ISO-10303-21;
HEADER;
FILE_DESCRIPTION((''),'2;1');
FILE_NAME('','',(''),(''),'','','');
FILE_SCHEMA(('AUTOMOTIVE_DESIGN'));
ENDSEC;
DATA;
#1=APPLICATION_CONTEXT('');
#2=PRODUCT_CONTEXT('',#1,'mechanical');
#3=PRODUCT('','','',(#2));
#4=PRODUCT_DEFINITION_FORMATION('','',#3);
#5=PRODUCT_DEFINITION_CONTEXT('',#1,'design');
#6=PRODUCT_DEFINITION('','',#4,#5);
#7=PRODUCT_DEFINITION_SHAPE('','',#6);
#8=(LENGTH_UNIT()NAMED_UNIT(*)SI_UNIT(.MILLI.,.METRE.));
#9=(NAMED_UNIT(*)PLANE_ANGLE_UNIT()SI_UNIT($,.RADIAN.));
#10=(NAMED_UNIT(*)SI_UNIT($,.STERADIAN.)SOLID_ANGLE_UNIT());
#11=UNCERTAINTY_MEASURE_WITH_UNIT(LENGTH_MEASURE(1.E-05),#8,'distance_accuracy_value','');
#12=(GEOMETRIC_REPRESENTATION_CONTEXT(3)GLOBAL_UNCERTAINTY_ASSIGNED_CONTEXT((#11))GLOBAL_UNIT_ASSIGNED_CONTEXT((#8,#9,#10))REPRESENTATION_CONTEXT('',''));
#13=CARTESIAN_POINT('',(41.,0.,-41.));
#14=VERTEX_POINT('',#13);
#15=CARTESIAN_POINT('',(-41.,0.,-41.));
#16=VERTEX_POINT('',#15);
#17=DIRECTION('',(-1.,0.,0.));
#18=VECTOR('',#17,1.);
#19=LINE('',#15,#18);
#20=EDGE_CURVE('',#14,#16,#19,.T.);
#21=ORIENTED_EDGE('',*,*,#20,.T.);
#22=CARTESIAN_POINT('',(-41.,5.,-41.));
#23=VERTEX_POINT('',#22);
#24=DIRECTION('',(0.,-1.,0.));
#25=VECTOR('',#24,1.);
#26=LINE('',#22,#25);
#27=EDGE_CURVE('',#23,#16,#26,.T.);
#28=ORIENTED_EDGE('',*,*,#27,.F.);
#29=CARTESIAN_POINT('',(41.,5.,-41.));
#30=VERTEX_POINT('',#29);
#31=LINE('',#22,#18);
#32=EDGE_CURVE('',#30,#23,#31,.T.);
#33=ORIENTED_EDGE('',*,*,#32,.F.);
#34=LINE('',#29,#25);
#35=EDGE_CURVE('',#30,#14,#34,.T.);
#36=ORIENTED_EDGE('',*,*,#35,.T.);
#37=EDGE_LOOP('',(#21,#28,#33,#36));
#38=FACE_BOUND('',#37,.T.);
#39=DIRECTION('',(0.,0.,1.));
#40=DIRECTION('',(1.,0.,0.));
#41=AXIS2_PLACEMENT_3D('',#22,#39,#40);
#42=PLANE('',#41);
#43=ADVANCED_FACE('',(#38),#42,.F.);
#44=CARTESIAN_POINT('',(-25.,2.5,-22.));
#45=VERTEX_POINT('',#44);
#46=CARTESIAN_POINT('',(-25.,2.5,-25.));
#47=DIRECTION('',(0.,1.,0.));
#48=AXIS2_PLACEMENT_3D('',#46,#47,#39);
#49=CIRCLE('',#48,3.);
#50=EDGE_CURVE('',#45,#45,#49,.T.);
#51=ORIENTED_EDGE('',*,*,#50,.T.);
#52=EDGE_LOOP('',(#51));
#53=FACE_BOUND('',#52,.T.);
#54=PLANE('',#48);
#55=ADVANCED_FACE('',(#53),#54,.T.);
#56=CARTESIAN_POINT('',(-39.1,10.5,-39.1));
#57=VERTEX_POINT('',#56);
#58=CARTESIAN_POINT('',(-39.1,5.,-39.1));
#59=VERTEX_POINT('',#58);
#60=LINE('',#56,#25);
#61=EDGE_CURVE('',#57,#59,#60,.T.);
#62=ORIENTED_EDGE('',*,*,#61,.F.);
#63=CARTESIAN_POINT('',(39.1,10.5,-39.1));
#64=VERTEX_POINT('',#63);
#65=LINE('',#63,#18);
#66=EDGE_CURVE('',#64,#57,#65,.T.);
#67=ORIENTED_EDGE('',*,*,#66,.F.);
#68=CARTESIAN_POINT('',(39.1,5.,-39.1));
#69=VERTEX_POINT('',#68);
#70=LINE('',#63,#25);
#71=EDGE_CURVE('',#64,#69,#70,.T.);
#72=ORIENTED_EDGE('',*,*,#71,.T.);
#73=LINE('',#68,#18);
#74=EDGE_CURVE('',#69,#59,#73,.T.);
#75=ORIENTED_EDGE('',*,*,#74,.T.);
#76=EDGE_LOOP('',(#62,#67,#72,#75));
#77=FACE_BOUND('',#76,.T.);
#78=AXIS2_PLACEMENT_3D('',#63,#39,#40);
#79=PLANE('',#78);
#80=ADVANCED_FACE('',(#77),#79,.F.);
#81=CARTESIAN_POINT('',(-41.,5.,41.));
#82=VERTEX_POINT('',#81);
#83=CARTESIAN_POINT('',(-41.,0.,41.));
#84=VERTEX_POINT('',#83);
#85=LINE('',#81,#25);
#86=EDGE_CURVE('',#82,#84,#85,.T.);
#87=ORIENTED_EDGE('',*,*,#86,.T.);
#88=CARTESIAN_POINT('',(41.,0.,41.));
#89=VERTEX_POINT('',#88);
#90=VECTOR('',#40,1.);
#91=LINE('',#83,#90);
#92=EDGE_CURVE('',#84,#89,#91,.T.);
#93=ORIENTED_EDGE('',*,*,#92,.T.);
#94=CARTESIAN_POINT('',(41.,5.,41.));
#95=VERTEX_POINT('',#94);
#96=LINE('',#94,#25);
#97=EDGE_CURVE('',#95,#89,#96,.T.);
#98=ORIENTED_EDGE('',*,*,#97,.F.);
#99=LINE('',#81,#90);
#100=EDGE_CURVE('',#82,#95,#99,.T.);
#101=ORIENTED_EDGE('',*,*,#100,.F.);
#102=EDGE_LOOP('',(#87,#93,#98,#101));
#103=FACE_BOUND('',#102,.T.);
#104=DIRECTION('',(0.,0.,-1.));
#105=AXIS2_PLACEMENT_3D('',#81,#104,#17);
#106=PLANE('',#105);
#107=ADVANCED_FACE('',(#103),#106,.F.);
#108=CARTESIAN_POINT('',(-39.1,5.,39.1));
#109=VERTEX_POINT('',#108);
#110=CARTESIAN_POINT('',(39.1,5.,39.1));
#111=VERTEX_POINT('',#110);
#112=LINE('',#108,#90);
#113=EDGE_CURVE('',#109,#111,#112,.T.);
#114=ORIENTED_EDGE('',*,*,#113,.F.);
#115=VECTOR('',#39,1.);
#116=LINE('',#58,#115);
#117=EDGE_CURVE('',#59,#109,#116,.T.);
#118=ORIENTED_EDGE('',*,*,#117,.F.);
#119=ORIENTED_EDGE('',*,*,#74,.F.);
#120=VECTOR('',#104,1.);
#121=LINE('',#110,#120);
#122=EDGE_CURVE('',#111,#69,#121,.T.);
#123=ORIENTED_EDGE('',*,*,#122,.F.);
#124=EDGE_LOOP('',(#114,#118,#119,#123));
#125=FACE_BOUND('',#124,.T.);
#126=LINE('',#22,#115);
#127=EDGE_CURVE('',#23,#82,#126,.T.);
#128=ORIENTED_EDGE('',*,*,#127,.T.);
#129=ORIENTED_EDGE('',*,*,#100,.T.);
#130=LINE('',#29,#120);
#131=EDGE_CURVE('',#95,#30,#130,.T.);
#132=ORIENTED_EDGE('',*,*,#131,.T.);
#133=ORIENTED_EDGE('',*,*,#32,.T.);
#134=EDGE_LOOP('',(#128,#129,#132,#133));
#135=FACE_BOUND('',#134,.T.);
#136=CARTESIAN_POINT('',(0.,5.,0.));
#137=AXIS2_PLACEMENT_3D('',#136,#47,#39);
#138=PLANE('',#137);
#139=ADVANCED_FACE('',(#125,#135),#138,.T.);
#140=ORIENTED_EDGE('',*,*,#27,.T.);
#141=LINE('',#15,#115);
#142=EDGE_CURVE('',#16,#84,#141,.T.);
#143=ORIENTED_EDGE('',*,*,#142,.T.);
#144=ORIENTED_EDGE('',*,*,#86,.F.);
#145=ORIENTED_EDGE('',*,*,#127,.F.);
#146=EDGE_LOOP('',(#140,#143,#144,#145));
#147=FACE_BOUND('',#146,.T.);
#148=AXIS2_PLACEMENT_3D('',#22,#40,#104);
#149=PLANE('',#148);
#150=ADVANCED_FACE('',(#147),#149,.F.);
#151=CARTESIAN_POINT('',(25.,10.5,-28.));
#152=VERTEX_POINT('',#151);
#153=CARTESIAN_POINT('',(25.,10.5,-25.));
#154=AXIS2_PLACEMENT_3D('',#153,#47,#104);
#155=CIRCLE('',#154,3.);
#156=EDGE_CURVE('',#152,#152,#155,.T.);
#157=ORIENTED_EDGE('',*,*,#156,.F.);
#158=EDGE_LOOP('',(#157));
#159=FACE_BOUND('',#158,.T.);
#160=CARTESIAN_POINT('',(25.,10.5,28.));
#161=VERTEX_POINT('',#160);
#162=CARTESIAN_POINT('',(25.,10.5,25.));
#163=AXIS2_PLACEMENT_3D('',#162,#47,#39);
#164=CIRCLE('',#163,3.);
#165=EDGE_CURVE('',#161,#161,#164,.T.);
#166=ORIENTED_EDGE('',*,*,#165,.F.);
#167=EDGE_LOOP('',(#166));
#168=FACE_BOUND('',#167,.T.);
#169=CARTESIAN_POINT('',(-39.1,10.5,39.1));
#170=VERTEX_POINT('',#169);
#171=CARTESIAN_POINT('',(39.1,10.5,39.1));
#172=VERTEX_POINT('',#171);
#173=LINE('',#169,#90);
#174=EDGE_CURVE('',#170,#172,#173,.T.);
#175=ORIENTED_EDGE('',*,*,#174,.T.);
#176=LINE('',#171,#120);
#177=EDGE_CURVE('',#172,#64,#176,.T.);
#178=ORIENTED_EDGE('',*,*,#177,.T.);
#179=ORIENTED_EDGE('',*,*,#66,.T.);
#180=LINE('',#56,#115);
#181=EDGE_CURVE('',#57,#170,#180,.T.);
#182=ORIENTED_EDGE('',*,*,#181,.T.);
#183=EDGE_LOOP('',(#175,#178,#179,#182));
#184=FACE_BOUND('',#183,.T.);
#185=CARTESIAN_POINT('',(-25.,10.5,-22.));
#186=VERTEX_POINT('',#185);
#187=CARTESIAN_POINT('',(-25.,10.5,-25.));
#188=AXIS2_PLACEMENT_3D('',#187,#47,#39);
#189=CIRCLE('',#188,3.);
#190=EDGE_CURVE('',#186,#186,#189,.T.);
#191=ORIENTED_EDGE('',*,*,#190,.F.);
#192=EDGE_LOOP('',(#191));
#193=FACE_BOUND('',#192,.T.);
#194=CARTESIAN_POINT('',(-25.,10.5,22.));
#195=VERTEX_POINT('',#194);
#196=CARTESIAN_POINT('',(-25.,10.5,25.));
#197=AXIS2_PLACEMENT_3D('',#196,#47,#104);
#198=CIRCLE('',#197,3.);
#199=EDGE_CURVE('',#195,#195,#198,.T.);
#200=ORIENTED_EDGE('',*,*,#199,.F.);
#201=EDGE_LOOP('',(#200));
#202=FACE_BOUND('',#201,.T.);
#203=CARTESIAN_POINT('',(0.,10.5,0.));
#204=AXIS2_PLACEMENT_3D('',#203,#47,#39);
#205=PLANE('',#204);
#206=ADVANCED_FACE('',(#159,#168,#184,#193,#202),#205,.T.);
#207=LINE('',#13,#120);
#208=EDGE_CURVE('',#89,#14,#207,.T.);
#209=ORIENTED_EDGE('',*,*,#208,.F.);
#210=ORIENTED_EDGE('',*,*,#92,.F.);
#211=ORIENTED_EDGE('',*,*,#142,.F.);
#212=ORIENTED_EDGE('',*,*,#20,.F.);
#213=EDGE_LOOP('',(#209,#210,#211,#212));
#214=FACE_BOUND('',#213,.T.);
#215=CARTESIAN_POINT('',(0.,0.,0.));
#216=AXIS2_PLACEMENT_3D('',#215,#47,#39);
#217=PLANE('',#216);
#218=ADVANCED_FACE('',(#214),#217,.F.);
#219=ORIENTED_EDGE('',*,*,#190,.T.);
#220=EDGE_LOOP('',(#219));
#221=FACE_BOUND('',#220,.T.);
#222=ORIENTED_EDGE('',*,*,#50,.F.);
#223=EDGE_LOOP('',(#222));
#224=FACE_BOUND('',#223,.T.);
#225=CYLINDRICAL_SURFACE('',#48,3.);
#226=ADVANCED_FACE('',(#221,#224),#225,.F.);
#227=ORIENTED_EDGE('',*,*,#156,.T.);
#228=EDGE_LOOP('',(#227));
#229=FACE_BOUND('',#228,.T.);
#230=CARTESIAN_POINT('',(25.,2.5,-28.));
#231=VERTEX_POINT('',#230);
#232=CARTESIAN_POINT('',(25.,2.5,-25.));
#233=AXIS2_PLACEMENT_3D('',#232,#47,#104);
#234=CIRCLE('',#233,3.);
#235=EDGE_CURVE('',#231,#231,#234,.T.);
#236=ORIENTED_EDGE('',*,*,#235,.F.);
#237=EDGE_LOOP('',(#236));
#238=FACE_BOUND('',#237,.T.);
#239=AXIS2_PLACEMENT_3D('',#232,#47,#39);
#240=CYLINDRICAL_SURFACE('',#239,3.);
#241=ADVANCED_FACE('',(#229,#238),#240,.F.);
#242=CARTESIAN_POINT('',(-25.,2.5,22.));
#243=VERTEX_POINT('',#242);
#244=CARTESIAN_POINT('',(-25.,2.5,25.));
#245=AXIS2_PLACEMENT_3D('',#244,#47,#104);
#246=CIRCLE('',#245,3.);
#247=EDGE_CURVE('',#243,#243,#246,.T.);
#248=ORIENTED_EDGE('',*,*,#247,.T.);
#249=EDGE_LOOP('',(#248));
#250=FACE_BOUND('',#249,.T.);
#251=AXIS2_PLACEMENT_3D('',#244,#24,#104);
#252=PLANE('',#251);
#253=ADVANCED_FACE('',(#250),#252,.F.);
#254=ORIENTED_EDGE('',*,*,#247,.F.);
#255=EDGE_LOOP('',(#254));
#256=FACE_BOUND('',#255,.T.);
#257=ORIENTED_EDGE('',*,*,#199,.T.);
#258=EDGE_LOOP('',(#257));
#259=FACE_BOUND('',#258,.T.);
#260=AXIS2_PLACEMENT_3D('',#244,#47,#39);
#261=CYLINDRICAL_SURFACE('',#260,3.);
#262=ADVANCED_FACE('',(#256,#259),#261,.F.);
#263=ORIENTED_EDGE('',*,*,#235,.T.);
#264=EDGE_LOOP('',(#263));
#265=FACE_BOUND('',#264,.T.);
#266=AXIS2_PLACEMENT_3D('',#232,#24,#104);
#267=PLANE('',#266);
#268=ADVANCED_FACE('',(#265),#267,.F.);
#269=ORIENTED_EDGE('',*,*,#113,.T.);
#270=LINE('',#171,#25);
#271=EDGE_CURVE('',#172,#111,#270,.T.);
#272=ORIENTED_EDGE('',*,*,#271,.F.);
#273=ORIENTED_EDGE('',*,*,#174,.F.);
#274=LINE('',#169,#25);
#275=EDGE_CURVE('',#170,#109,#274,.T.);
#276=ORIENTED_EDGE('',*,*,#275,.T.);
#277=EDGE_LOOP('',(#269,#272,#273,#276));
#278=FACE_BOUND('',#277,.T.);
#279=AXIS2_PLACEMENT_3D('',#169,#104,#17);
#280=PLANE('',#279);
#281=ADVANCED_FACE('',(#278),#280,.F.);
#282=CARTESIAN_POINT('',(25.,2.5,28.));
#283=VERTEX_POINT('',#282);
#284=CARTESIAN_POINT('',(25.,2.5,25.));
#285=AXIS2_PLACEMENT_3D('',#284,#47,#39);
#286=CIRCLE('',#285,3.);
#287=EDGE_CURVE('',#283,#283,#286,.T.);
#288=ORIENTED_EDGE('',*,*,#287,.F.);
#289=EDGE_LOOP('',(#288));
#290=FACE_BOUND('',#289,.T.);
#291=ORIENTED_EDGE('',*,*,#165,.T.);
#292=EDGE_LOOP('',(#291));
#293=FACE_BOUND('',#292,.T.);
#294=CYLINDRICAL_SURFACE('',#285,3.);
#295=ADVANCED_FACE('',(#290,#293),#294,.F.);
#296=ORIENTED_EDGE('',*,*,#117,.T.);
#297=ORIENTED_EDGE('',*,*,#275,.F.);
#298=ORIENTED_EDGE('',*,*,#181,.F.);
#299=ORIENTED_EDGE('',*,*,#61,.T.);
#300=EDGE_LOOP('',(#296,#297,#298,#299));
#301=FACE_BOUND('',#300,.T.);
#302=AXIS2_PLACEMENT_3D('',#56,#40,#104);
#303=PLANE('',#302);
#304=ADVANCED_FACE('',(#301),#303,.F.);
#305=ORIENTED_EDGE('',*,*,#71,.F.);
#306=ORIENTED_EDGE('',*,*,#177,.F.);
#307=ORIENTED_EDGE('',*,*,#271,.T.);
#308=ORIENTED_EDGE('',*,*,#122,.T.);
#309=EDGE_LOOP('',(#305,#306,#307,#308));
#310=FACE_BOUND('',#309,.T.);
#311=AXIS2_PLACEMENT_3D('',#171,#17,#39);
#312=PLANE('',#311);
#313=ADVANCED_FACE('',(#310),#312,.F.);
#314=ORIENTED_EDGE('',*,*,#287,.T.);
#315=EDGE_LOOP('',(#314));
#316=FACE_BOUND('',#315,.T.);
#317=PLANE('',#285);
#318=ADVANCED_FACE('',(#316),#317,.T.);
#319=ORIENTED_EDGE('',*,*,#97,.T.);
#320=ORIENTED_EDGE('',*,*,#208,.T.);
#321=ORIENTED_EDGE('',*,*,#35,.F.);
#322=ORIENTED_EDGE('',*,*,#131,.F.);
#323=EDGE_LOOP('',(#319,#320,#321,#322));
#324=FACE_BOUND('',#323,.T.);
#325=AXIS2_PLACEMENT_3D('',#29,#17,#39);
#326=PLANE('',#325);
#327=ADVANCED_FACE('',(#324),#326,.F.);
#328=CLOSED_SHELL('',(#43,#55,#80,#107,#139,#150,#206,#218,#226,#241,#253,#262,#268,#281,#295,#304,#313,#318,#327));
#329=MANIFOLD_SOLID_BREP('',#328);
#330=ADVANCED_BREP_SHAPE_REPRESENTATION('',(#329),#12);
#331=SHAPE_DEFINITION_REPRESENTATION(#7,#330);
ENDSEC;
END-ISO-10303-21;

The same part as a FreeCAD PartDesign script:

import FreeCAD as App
import Part
import Sketcher

doc = App.newDocument("Part")
params = doc.addObject("Spreadsheet::Sheet", "Params")
for row, (alias, value) in enumerate([
    ("sketch1_width", "82 mm"),
    ("pad1_length", "5 mm"),
    ("sketch2_width", "78.2 mm"),
    ("pad2_length", "5.5 mm"),
    ("sketch3_diameter", "6 mm"),
    ("pocket1_length", "8 mm"),
], start=1):
    params.set(f"A{row}", alias)
    params.set(f"B{row}", "=" + value)
    params.setAlias(f"B{row}", alias)

body = doc.addObject("PartDesign::Body", "Body")

sketch1 = doc.addObject("Sketcher::SketchObject", "Sketch")
body.addObject(sketch1)
sketch1.AttachmentSupport = (doc.XZ_Plane, [""])
sketch1.MapMode = "FlatFace"
sketch1.addGeometry(Part.LineSegment(App.Vector(-41, -41, 0), App.Vector(-41, 41, 0)), False)
sketch1.addGeometry(Part.LineSegment(App.Vector(-41, 41, 0), App.Vector(41, 41, 0)), False)
sketch1.addGeometry(Part.LineSegment(App.Vector(41, 41, 0), App.Vector(41, -41, 0)), False)
sketch1.addGeometry(Part.LineSegment(App.Vector(41, -41, 0), App.Vector(-41, -41, 0)), False)
sketch1.addConstraint(Sketcher.Constraint("Coincident", 0, 2, 1, 1))
sketch1.addConstraint(Sketcher.Constraint("Coincident", 1, 2, 2, 1))
sketch1.addConstraint(Sketcher.Constraint("Coincident", 2, 2, 3, 1))
sketch1.addConstraint(Sketcher.Constraint("Coincident", 3, 2, 0, 1))
sketch1.addConstraint(Sketcher.Constraint("Vertical", 0))
sketch1.addConstraint(Sketcher.Constraint("Horizontal", 1))
sketch1.addConstraint(Sketcher.Constraint("Vertical", 2))
sketch1.addConstraint(Sketcher.Constraint("Horizontal", 3))
sketch1.addConstraint(Sketcher.Constraint("Symmetric", 0, 2, 2, 2, -1, 1))
sketch1.addConstraint(Sketcher.Constraint("Equal", 3, 0))
sketch1.addConstraint(Sketcher.Constraint("DistanceX", 1, 1, 1, 2, 82.0))
sketch1.setExpression("Constraints[10]", "Params.sketch1_width")
pad1 = doc.addObject("PartDesign::Pad", "Pad")
body.addObject(pad1)
pad1.Profile = sketch1
pad1.setExpression("Length", "Params.pad1_length")
pad1.Reversed = True

sketch2 = doc.addObject("Sketcher::SketchObject", "Sketch001")
body.addObject(sketch2)
sketch2.AttachmentSupport = (doc.XZ_Plane, [""])
sketch2.MapMode = "FlatFace"
sketch2.AttachmentOffset = App.Placement(App.Vector(0, 0, -5), App.Rotation())
sketch2.addGeometry(Part.LineSegment(App.Vector(-39.1, -39.1, 0), App.Vector(-39.1, 39.1, 0)), False)
sketch2.addGeometry(Part.LineSegment(App.Vector(-39.1, 39.1, 0), App.Vector(39.1, 39.1, 0)), False)
sketch2.addGeometry(Part.LineSegment(App.Vector(39.1, 39.1, 0), App.Vector(39.1, -39.1, 0)), False)
sketch2.addGeometry(Part.LineSegment(App.Vector(39.1, -39.1, 0), App.Vector(-39.1, -39.1, 0)), False)
sketch2.addConstraint(Sketcher.Constraint("Coincident", 0, 2, 1, 1))
sketch2.addConstraint(Sketcher.Constraint("Coincident", 1, 2, 2, 1))
sketch2.addConstraint(Sketcher.Constraint("Coincident", 2, 2, 3, 1))
sketch2.addConstraint(Sketcher.Constraint("Coincident", 3, 2, 0, 1))
sketch2.addConstraint(Sketcher.Constraint("Vertical", 0))
sketch2.addConstraint(Sketcher.Constraint("Horizontal", 1))
sketch2.addConstraint(Sketcher.Constraint("Vertical", 2))
sketch2.addConstraint(Sketcher.Constraint("Horizontal", 3))
sketch2.addConstraint(Sketcher.Constraint("Symmetric", 0, 2, 2, 2, -1, 1))
sketch2.addConstraint(Sketcher.Constraint("Equal", 3, 0))
sketch2.addConstraint(Sketcher.Constraint("DistanceX", 1, 1, 1, 2, 78.2))
sketch2.setExpression("Constraints[10]", "Params.sketch2_width")
pad2 = doc.addObject("PartDesign::Pad", "Pad001")
body.addObject(pad2)
pad2.Profile = sketch2
pad2.setExpression("Length", "Params.pad2_length")
pad2.Reversed = True

sketch3 = doc.addObject("Sketcher::SketchObject", "Sketch002")
body.addObject(sketch3)
sketch3.AttachmentSupport = (doc.XZ_Plane, [""])
sketch3.MapMode = "FlatFace"
sketch3.AttachmentOffset = App.Placement(App.Vector(0, 0, -10.5), App.Rotation())
sketch3.addGeometry(Part.Circle(App.Vector(-25, -25, 0), App.Vector(0, 0, 1), 3), False)
sketch3.addGeometry(Part.Circle(App.Vector(-25, 25, 0), App.Vector(0, 0, 1), 3), False)
sketch3.addGeometry(Part.Circle(App.Vector(25, 25, 0), App.Vector(0, 0, 1), 3), False)
sketch3.addGeometry(Part.Circle(App.Vector(25, -25, 0), App.Vector(0, 0, 1), 3), False)
sketch3.addConstraint(Sketcher.Constraint("Equal", 0, 1))
sketch3.addConstraint(Sketcher.Constraint("Equal", 1, 2))
sketch3.addConstraint(Sketcher.Constraint("Equal", 2, 3))
sketch3.addConstraint(Sketcher.Constraint("Symmetric", 0, 3, 2, 3, -1, 1))
sketch3.addConstraint(Sketcher.Constraint("Symmetric", 1, 3, 3, 3, -1, 1))
sketch3.addConstraint(Sketcher.Constraint("Symmetric", 1, 3, 2, 3, -2))
sketch3.addConstraint(Sketcher.Constraint("Diameter", 0, 6.0))
sketch3.addConstraint(Sketcher.Constraint("DistanceX", 0, 3, -1, 1, 25.0))
sketch3.addConstraint(Sketcher.Constraint("DistanceY", 0, 3, -1, 1, 25.0))
sketch3.setExpression("Constraints[6]", "Params.sketch3_diameter")
pocket1 = doc.addObject("PartDesign::Pocket", "Pocket")
body.addObject(pocket1)
pocket1.Profile = sketch3
pocket1.setExpression("Length", "Params.pocket1_length")
pocket1.Reversed = True

doc.recompute()
